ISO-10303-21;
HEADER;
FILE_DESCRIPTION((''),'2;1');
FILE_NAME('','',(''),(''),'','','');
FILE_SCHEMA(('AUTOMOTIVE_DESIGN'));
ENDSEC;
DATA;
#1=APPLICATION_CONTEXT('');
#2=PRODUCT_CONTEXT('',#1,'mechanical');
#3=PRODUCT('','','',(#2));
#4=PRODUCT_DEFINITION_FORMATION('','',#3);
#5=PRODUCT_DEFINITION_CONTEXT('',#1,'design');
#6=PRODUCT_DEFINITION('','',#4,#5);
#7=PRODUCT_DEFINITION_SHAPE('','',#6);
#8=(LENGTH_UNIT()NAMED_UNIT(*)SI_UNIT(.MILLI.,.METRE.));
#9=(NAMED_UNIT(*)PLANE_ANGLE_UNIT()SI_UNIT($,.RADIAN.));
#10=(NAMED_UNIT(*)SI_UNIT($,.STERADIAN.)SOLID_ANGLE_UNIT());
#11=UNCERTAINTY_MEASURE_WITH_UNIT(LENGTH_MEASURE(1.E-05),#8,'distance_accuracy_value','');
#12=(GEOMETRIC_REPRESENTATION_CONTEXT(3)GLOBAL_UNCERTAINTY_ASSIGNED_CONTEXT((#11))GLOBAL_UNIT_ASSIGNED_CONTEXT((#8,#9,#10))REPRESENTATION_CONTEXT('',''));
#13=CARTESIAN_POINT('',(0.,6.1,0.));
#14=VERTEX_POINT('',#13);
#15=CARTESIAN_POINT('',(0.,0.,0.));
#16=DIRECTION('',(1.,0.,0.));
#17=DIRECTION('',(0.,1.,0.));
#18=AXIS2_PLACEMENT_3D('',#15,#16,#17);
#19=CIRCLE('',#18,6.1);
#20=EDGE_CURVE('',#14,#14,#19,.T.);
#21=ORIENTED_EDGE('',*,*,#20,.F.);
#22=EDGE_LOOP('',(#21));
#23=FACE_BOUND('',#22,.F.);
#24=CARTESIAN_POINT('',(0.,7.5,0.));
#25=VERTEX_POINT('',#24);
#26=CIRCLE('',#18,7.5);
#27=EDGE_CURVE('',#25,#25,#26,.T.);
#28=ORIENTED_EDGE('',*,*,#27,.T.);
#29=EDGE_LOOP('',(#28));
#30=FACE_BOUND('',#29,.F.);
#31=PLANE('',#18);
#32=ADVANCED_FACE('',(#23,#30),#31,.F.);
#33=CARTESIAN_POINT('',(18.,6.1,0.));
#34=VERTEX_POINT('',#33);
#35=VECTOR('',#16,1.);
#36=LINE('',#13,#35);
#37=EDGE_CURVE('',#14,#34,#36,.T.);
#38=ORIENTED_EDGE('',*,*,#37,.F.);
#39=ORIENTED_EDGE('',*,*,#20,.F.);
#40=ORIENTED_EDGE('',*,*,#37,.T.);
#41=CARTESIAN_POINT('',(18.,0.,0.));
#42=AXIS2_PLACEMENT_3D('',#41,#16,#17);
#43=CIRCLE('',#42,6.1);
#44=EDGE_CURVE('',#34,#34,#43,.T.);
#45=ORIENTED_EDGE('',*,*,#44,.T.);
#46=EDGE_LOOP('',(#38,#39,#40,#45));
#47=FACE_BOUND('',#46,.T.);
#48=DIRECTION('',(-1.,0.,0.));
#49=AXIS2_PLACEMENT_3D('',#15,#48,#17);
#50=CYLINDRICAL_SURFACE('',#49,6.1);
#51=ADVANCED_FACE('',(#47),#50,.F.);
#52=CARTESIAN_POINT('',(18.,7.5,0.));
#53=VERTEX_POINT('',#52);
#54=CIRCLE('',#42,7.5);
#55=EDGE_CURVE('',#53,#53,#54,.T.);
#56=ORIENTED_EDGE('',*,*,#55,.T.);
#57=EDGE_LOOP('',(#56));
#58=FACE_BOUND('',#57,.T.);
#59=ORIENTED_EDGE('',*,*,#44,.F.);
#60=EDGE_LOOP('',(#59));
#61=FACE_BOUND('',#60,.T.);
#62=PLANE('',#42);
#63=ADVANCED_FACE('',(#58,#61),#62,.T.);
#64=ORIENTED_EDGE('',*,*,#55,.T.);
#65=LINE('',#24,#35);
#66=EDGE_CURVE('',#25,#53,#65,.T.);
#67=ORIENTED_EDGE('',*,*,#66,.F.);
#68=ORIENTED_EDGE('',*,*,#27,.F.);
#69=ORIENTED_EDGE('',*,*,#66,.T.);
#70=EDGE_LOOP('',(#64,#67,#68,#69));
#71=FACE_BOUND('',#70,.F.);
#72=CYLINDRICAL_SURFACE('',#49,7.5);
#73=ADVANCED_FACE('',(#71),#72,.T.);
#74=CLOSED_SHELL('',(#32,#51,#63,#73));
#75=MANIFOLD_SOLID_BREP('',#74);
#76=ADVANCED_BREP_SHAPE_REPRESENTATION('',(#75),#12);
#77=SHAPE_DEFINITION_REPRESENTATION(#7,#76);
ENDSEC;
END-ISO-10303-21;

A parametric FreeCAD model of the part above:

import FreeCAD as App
import Part
import Sketcher
Q = App.Units.Quantity

doc = App.newDocument("Part")
params = doc.addObject("Spreadsheet::Sheet", "Params")
for row, (alias, value) in enumerate([
    ("sketch1_diameter", "15 mm"),
    ("sketch1_diameter2", "12.2 mm"),
    ("pad1_length", "18 mm"),
], start=1):
    params.set(f"A{row}", alias)
    params.set(f"B{row}", "=" + value)
    params.setAlias(f"B{row}", alias)

body = doc.addObject("PartDesign::Body", "Body")

# Sketch on YZ plane
sketch1 = body.newObject("Sketcher::SketchObject", "Sketch")
sketch1.AttachmentSupport = (doc.getObject("YZ_Plane"), [""])
sketch1.MapMode = "FlatFace"
sketch1.addGeometry(Part.Circle(App.Vector(0, 0, 0), App.Vector(0, 0, 1), 8), False)
sketch1.addGeometry(Part.Circle(App.Vector(0, 0, 0), App.Vector(0, 0, 1), 6), False)
sketch1.addConstraint(Sketcher.Constraint("Coincident", 0, 3, -1, 1))
sketch1.addConstraint(Sketcher.Constraint("Coincident", 1, 3, -1, 1))
sketch1.addConstraint(Sketcher.Constraint("Diameter", 0, Q("15 mm")))
sketch1.addConstraint(Sketcher.Constraint("Diameter", 1, Q("12.2 mm")))
sketch1.setExpression("Constraints[2]", "Params.sketch1_diameter")
sketch1.setExpression("Constraints[3]", "Params.sketch1_diameter2")
pad1 = body.newObject("PartDesign::Pad", "Pad")
pad1.Profile = sketch1
pad1.setExpression("Length", "Params.pad1_length")

doc.recompute()
